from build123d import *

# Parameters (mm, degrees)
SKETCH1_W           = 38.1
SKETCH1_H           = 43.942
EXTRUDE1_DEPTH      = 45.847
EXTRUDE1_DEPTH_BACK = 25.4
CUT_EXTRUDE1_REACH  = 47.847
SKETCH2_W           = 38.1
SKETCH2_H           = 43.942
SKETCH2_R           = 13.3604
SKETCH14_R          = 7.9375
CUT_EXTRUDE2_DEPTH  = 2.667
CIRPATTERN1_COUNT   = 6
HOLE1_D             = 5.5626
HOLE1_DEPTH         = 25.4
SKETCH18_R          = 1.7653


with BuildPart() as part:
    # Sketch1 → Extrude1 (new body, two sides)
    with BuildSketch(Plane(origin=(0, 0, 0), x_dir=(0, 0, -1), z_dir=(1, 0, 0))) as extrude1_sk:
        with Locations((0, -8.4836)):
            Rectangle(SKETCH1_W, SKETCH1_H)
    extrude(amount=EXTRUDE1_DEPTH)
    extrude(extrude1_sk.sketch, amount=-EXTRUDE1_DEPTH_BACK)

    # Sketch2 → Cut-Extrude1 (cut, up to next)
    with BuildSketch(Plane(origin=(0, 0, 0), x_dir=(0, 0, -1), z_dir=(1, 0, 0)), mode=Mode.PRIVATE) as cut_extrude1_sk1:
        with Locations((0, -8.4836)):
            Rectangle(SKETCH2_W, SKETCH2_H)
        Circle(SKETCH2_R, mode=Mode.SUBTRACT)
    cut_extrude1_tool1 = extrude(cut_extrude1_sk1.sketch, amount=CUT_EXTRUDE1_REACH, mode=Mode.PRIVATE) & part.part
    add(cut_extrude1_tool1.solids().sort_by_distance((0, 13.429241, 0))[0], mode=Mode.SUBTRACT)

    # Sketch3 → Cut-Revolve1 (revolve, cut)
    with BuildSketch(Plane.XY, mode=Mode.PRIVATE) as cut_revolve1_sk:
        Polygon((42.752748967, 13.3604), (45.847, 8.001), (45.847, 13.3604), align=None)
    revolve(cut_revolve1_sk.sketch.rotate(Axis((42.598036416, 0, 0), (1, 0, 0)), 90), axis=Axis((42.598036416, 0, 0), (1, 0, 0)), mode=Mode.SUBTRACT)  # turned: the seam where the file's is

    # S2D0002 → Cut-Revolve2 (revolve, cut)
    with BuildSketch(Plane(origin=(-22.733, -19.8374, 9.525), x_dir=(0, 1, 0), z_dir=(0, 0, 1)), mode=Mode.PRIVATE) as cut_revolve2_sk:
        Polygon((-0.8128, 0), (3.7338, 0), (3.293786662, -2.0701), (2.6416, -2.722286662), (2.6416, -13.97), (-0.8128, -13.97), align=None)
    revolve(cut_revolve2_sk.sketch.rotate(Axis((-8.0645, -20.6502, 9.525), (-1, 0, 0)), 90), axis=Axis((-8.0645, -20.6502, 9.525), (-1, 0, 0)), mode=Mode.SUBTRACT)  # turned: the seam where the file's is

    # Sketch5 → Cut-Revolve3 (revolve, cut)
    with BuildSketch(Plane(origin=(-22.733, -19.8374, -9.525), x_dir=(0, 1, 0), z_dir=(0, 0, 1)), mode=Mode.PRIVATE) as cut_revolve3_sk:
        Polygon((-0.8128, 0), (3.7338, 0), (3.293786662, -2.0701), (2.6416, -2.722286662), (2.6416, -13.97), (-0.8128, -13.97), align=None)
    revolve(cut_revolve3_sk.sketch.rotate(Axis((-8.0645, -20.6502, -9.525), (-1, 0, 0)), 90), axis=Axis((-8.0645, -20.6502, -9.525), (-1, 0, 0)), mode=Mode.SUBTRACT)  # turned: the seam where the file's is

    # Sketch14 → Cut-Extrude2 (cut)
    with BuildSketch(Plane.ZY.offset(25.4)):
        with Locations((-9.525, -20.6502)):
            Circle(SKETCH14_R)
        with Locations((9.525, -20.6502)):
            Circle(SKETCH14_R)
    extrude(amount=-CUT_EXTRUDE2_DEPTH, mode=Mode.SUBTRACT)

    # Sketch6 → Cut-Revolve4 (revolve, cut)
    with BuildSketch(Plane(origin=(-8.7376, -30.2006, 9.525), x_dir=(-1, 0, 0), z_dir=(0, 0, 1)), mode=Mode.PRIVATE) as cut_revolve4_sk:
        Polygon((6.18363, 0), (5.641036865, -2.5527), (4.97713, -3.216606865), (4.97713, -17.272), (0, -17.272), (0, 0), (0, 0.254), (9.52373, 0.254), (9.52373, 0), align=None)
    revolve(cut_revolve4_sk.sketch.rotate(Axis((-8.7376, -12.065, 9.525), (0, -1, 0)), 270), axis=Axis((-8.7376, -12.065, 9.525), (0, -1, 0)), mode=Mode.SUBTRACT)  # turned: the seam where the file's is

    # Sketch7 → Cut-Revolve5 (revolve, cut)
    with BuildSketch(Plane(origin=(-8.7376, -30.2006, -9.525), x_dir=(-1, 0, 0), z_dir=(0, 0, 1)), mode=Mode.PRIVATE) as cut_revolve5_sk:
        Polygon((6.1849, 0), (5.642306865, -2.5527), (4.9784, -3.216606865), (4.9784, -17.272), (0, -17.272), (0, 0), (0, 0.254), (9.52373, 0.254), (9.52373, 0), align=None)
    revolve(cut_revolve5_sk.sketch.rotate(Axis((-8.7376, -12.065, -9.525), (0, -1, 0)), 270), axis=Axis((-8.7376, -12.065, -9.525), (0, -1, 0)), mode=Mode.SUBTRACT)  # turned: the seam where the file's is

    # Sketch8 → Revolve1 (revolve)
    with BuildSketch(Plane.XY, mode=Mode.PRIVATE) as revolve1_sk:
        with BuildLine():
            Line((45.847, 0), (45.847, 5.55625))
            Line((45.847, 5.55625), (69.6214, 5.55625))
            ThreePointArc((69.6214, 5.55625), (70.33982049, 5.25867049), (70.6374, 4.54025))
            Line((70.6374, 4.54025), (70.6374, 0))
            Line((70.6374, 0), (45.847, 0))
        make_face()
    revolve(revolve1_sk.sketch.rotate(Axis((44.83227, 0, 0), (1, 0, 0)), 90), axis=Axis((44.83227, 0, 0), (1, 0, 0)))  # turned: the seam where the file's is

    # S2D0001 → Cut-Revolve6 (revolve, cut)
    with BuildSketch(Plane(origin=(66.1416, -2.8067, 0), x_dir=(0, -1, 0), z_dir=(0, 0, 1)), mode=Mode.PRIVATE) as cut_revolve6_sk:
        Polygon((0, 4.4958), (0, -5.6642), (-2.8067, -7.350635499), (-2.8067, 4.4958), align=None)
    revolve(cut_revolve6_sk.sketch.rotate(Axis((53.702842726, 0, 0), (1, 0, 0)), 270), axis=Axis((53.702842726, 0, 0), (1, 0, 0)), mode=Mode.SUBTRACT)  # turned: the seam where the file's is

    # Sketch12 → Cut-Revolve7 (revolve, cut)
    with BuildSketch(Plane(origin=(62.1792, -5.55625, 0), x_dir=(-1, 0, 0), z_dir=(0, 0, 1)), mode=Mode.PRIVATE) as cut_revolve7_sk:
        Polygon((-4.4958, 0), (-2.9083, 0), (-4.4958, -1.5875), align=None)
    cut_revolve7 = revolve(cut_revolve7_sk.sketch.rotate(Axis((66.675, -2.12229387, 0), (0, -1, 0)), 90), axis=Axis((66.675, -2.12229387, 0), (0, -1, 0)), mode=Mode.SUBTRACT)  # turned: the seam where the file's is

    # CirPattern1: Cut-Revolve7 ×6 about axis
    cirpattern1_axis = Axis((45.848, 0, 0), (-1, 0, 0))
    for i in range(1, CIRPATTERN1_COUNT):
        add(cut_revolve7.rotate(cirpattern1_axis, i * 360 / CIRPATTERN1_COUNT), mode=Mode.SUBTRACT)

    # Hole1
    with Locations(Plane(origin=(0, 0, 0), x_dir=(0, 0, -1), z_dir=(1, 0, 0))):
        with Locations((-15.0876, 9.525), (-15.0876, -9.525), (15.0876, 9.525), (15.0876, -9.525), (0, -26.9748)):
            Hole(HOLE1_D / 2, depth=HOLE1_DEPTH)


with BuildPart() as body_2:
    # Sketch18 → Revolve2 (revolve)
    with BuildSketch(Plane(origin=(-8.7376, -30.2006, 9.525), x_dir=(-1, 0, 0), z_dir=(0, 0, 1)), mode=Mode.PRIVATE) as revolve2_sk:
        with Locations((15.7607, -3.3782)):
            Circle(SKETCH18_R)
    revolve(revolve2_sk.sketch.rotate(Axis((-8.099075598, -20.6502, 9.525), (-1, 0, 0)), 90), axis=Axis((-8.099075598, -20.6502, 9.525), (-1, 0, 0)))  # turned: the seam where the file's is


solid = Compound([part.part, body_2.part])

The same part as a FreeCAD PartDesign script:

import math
import FreeCAD as App
import Part
import Sketcher

V = App.Vector
Q = App.Units.Quantity

doc = App.newDocument("Part")
params = doc.addObject("Spreadsheet::Sheet", "Params")
for row, (alias, value) in enumerate([
    ("sketch1_height", "1.5 in"),
    ("sketch1_width", "1.73 in"),
    ("pad1_length", "1.805 in"),
    ("pad1_length2", "1 in"),
    ("sketch2_diameter", "1.052 in"),
    ("sketch2_height", "1.5 in"),
    ("sketch2_width", "1.73 in"),
    ("sketch3_height", "0.211 in"),
    ("groove_angle", "360 deg"),
    ("sketch4_width", "0.55 in"),
    ("sketch4_height", "0.179 in"),
    ("sketch4_height2", "0.136 in"),
    ("groove2_angle", "360 deg"),
    ("sketch5_width", "0.55 in"),
    ("sketch5_height", "0.179 in"),
    ("sketch5_height2", "0.136 in"),
    ("groove3_angle", "360 deg"),
    ("sketch6_diameter", "0.625 in"),
    ("pocket2_length", "0.105 in"),
    ("sketch7_height", "0.01 in"),
    ("sketch7_height2", "0.69 in"),
    ("groove4_angle", "360 deg"),
    ("sketch8_height", "0.01 in"),
    ("sketch8_height2", "0.69 in"),
    ("sketch8_width", "0.196 in"),
    ("groove5_angle", "360 deg"),
    ("sketch9_radius", "0.04 in"),
    ("sketch9_width", "0.976 in"),
    ("sketch9_height", "0.21875 in"),
    ("revolution_angle", "360 deg"),
    ("sketch10_width", "0.4 in"),
    ("groove6_angle", "360 deg"),
    ("sketch11_width", "0.0625 in"),
    ("groove7_angle", "360 deg"),
    ("sketch12_diameter", "0.219 in"),
    ("hole_diameter", "0.219 in"),
    ("hole_depth", "1 in"),
    ("sketch13_diameter", "0.139 in"),
    ("revolution2_angle", "360 deg"),
], start=1):
    params.set(f"A{row}", alias)
    params.set(f"B{row}", "=" + value)
    params.setAlias(f"B{row}", alias)

body = doc.addObject("PartDesign::Body", "Body")

sketch1 = body.newObject("Sketcher::SketchObject", "Sketch")
sketch1.AttachmentSupport = (doc.getObject("YZ_Plane"), [""])
sketch1.MapMode = "FlatFace"
sketch1.addGeometry(Part.LineSegment(V(13.4874, 19.05, 0), V(-30.4546, 19.05, 0)), False)
sketch1.addGeometry(Part.LineSegment(V(-30.4546, 19.05, 0), V(-30.4546, -19.05, 0)), False)
sketch1.addGeometry(Part.LineSegment(V(-30.4546, -19.05, 0), V(13.4874, -19.05, 0)), False)
sketch1.addGeometry(Part.LineSegment(V(13.4874, -19.05, 0), V(13.4874, 19.05, 0)), False)
sketch1.addConstraint(Sketcher.Constraint("Coincident", 0, 2, 1, 1))
sketch1.addConstraint(Sketcher.Constraint("Coincident", 1, 2, 2, 1))
sketch1.addConstraint(Sketcher.Constraint("Coincident", 2, 2, 3, 1))
sketch1.addConstraint(Sketcher.Constraint("Coincident", 3, 2, 0, 1))
sketch1.addConstraint(Sketcher.Constraint("Horizontal", 0))
sketch1.addConstraint(Sketcher.Constraint("Vertical", 1))
sketch1.addConstraint(Sketcher.Constraint("Horizontal", 2))
sketch1.addConstraint(Sketcher.Constraint("Vertical", 3))
sketch1.addConstraint(Sketcher.Constraint("DistanceY", 1, 2, 1, 1, Q("1.5 in")))
sketch1.addConstraint(Sketcher.Constraint("DistanceX", 0, 2, 0, 1, Q("1.73 in")))
sketch1.addConstraint(Sketcher.Constraint("DistanceY", -1, 1, 0, 2, Q("0.75 in")))
sketch1.addConstraint(Sketcher.Constraint("DistanceX", 0, 2, -1, 1, Q("1.199 in")))
sketch1.setExpression("Constraints[8]", "Params.sketch1_height")
sketch1.setExpression("Constraints[9]", "Params.sketch1_width")
pad1 = body.newObject("PartDesign::Pad", "Pad")
pad1.Profile = sketch1
pad1.Type = "TwoLengths"
pad1.setExpression("Length", "Params.pad1_length")
pad1.setExpression("Length2", "Params.pad1_length2")

sketch2 = body.newObject("Sketcher::SketchObject", "Sketch001")
sketch2.AttachmentSupport = (doc.getObject("YZ_Plane"), [""])
sketch2.MapMode = "FlatFace"
sketch2.addGeometry(Part.LineSegment(V(13.4874, 19.05, 0), V(-30.4546, 19.05, 0)), False)
sketch2.addGeometry(Part.LineSegment(V(-30.4546, 19.05, 0), V(-30.4546, -19.05, 0)), False)
sketch2.addGeometry(Part.LineSegment(V(-30.4546, -19.05, 0), V(13.4874, -19.05, 0)), False)
sketch2.addGeometry(Part.LineSegment(V(13.4874, -19.05, 0), V(13.4874, 19.05, 0)), False)
sketch2.addGeometry(Part.Circle(V(0, 0, 0), V(0, 0, 1), 13.3604), False)
sketch2.addConstraint(Sketcher.Constraint("Coincident", 0, 2, 1, 1))
sketch2.addConstraint(Sketcher.Constraint("Coincident", 1, 2, 2, 1))
sketch2.addConstraint(Sketcher.Constraint("Coincident", 2, 2, 3, 1))
sketch2.addConstraint(Sketcher.Constraint("Coincident", 3, 2, 0, 1))
sketch2.addConstraint(Sketcher.Constraint("Horizontal", 0))
sketch2.addConstraint(Sketcher.Constraint("Vertical", 1))
sketch2.addConstraint(Sketcher.Constraint("Horizontal", 2))
sketch2.addConstraint(Sketcher.Constraint("Vertical", 3))
sketch2.addConstraint(Sketcher.Constraint("Coincident", 4, 3, -1, 1))
sketch2.addConstraint(Sketcher.Constraint("Diameter", 4, Q("1.052 in")))
sketch2.addConstraint(Sketcher.Constraint("DistanceY", 1, 2, 1, 1, Q("1.5 in")))
sketch2.addConstraint(Sketcher.Constraint("DistanceX", 0, 2, 0, 1, Q("1.73 in")))
sketch2.addConstraint(Sketcher.Constraint("DistanceY", -1, 1, 0, 2, Q("0.75 in")))
sketch2.addConstraint(Sketcher.Constraint("DistanceX", 0, 2, -1, 1, Q("1.199 in")))
sketch2.setExpression("Constraints[9]", "Params.sketch2_diameter")
sketch2.setExpression("Constraints[10]", "Params.sketch2_height")
sketch2.setExpression("Constraints[11]", "Params.sketch2_width")
pocket1 = body.newObject("PartDesign::Pocket", "Pocket")
pocket1.Profile = sketch2
pocket1.Type = "UpToFirst"
pocket1.Reversed = True

sketch3 = body.newObject("Sketcher::SketchObject", "Sketch002")
sketch3.AttachmentSupport = (doc.getObject("XY_Plane"), [""])
sketch3.MapMode = "FlatFace"
sketch3.addGeometry(Part.LineSegment(V(42.752749, 13.3604, 0), V(45.847, 8.001, 0)), False)
sketch3.addGeometry(Part.LineSegment(V(45.847, 8.001, 0), V(45.847, 13.3604, 0)), False)
sketch3.addGeometry(Part.LineSegment(V(45.847, 13.3604, 0), V(42.752749, 13.3604, 0)), False)
sketch3.addConstraint(Sketcher.Constraint("Coincident", 0, 2, 1, 1))
sketch3.addConstraint(Sketcher.Constraint("Coincident", 1, 2, 2, 1))
sketch3.addConstraint(Sketcher.Constraint("Coincident", 2, 2, 0, 1))
sketch3.addConstraint(Sketcher.Constraint("Vertical", 1))
sketch3.addConstraint(Sketcher.Constraint("Horizontal", 2))
sketch3.addConstraint(Sketcher.Constraint("Angle", 0, Q("-60 deg")))
sketch3.addConstraint(Sketcher.Constraint("DistanceY", 1, 1, 1, 2, Q("0.211 in")))
sketch3.addConstraint(Sketcher.Constraint("DistanceX", -1, 1, 0, 2, Q("1.805 in")))
sketch3.addConstraint(Sketcher.Constraint("DistanceY", -1, 1, 0, 2, Q("0.315 in")))
sketch3.setExpression("Constraints[6]", "Params.sketch3_height")
groove = body.newObject("PartDesign::Groove", "Groove")
groove.Profile = sketch3
groove.ReferenceAxis = (sketch3, ["H_Axis"])
groove.setExpression("Angle", "Params.groove_angle")

sketch4 = body.newObject("Sketcher::SketchObject", "Sketch003")
sketch4.AttachmentSupport = (doc.getObject("XY_Plane"), [""])
sketch4.MapMode = "FlatFace"
sketch4.AttachmentOffset = App.Placement(V(0, 0, 0.375 * 25.4), App.Rotation())
sketch4.addGeometry(Part.LineSegment(V(-22.733, -16.1036, 0), V(-22.733, -20.6502, 0)), False)
sketch4.addGeometry(Part.LineSegment(V(-22.733, -20.6502, 0), V(-8.763, -20.6502, 0)), False)
sketch4.addGeometry(Part.LineSegment(V(-8.763, -20.6502, 0), V(-8.763, -17.1958, 0)), False)
sketch4.addGeometry(Part.LineSegment(V(-8.763, -17.1958, 0), V(-20.010713, -17.1958, 0)), False)
sketch4.addGeometry(Part.LineSegment(V(-20.010713, -17.1958, 0), V(-20.6629, -16.543613, 0)), False)
sketch4.addGeometry(Part.LineSegment(V(-20.6629, -16.543613, 0), V(-22.733, -16.1036, 0)), False)
sketch4.addGeometry(Part.LineSegment(V(-8.763, -20.6502, 0), V(-22.733, -20.6502, 0)), True)
sketch4.addConstraint(Sketcher.Constraint("Coincident", 0, 2, 1, 1))
sketch4.addConstraint(Sketcher.Constraint("Coincident", 1, 2, 2, 1))
sketch4.addConstraint(Sketcher.Constraint("Coincident", 2, 2, 3, 1))
sketch4.addConstraint(Sketcher.Constraint("Coincident", 3, 2, 4, 1))
sketch4.addConstraint(Sketcher.Constraint("Coincident", 4, 2, 5, 1))
sketch4.addConstraint(Sketcher.Constraint("Coincident", 5, 2, 0, 1))
sketch4.addConstraint(Sketcher.Constraint("Vertical", 0))
sketch4.addConstraint(Sketcher.Constraint("Horizontal", 1))
sketch4.addConstraint(Sketcher.Constraint("Vertical", 2))
sketch4.addConstraint(Sketcher.Constraint("Horizontal", 3))
sketch4.addConstraint(Sketcher.Constraint("Horizontal", 6))
sketch4.addConstraint(Sketcher.Constraint("Coincident", 6, 1, 1, 2))
sketch4.addConstraint(Sketcher.Constraint("Vertical", 5, 2, 6, 2))
sketch4.addConstraint(Sketcher.Constraint("Angle", 4, Q("135 deg")))
sketch4.addConstraint(Sketcher.Constraint("Angle", 5, Q("168 deg")))
sketch4.addConstraint(Sketcher.Constraint("DistanceX", 1, 1, 1, 2, Q("0.55 in")))
sketch4.addConstraint(Sketcher.Constraint("DistanceY", 0, 2, 0, 1, Q("0.179 in")))
sketch4.addConstraint(Sketcher.Constraint("DistanceY", 2, 1, 2, 2, Q("0.136 in")))
sketch4.addConstraint(Sketcher.Constraint("DistanceX", 0, 2, -1, 1, Q("0.895 in")))
sketch4.addConstraint(Sketcher.Constraint("DistanceY", 0, 2, -1, 1, Q("0.813 in")))
sketch4.addConstraint(Sketcher.Constraint("DistanceX", 4, 2, -1, 1, Q("0.8135 in")))
sketch4.setExpression("Constraints[15]", "Params.sketch4_width")
sketch4.setExpression("Constraints[16]", "Params.sketch4_height")
sketch4.setExpression("Constraints[17]", "Params.sketch4_height2")
groove2 = body.newObject("PartDesign::Groove", "Groove001")
groove2.Profile = sketch4
groove2.ReferenceAxis = (sketch4, ["Axis0"])
groove2.setExpression("Angle", "Params.groove2_angle")

sketch5 = body.newObject("Sketcher::SketchObject", "Sketch004")
sketch5.AttachmentSupport = (doc.getObject("XY_Plane"), [""])
sketch5.MapMode = "FlatFace"
sketch5.AttachmentOffset = App.Placement(V(0, 0, -0.375 * 25.4), App.Rotation())
sketch5.addGeometry(Part.LineSegment(V(-22.733, -16.1036, 0), V(-22.733, -20.6502, 0)), False)
sketch5.addGeometry(Part.LineSegment(V(-22.733, -20.6502, 0), V(-8.763, -20.6502, 0)), False)
sketch5.addGeometry(Part.LineSegment(V(-8.763, -20.6502, 0), V(-8.763, -17.1958, 0)), False)
sketch5.addGeometry(Part.LineSegment(V(-8.763, -17.1958, 0), V(-20.010713, -17.1958, 0)), False)
sketch5.addGeometry(Part.LineSegment(V(-20.010713, -17.1958, 0), V(-20.6629, -16.543613, 0)), False)
sketch5.addGeometry(Part.LineSegment(V(-20.6629, -16.543613, 0), V(-22.733, -16.1036, 0)), False)
sketch5.addGeometry(Part.LineSegment(V(-8.763, -20.6502, 0), V(-22.733, -20.6502, 0)), True)
sketch5.addConstraint(Sketcher.Constraint("Coincident", 0, 2, 1, 1))
sketch5.addConstraint(Sketcher.Constraint("Coincident", 1, 2, 2, 1))
sketch5.addConstraint(Sketcher.Constraint("Coincident", 2, 2, 3, 1))
sketch5.addConstraint(Sketcher.Constraint("Coincident", 3, 2, 4, 1))
sketch5.addConstraint(Sketcher.Constraint("Coincident", 4, 2, 5, 1))
sketch5.addConstraint(Sketcher.Constraint("Coincident", 5, 2, 0, 1))
sketch5.addConstraint(Sketcher.Constraint("Vertical", 0))
sketch5.addConstraint(Sketcher.Constraint("Horizontal", 1))
sketch5.addConstraint(Sketcher.Constraint("Vertical", 2))
sketch5.addConstraint(Sketcher.Constraint("Horizontal", 3))
sketch5.addConstraint(Sketcher.Constraint("Horizontal", 6))
sketch5.addConstraint(Sketcher.Constraint("Coincident", 6, 1, 1, 2))
sketch5.addConstraint(Sketcher.Constraint("Vertical", 5, 2, 6, 2))
sketch5.addConstraint(Sketcher.Constraint("Angle", 4, Q("135 deg")))
sketch5.addConstraint(Sketcher.Constraint("Angle", 5, Q("168 deg")))
sketch5.addConstraint(Sketcher.Constraint("DistanceX", 1, 1, 1, 2, Q("0.55 in")))
sketch5.addConstraint(Sketcher.Constraint("DistanceY", 0, 2, 0, 1, Q("0.179 in")))
sketch5.addConstraint(Sketcher.Constraint("DistanceY", 2, 1, 2, 2, Q("0.136 in")))
sketch5.addConstraint(Sketcher.Constraint("DistanceX", 0, 2, -1, 1, Q("0.895 in")))
sketch5.addConstraint(Sketcher.Constraint("DistanceY", 0, 2, -1, 1, Q("0.813 in")))
sketch5.addConstraint(Sketcher.Constraint("DistanceX", 4, 2, -1, 1, Q("0.8135 in")))
sketch5.setExpression("Constraints[15]", "Params.sketch5_width")
sketch5.setExpression("Constraints[16]", "Params.sketch5_height")
sketch5.setExpression("Constraints[17]", "Params.sketch5_height2")
groove3 = body.newObject("PartDesign::Groove", "Groove002")
groove3.Profile = sketch5
groove3.ReferenceAxis = (sketch5, ["Axis0"])
groove3.setExpression("Angle", "Params.groove3_angle")

sketch6 = body.newObject("Sketcher::SketchObject", "Sketch005")
sketch6.AttachmentSupport = (doc.getObject("YZ_Plane"), [""])
sketch6.MapMode = "FlatFace"
sketch6.AttachmentOffset = App.Placement(V(0, 0, -1 * 25.4), App.Rotation())
sketch6.addGeometry(Part.Circle(V(-20.6502, -9.525, 0), V(0, 0, 1), 7.9375), False)
sketch6.addGeometry(Part.Circle(V(-20.6502, 9.525, 0), V(0, 0, 1), 7.9375), False)
sketch6.addConstraint(Sketcher.Constraint("Equal", 0, 1))
sketch6.addConstraint(Sketcher.Constraint("Symmetric", 0, 3, 1, 3, -1))
sketch6.addConstraint(Sketcher.Constraint("Diameter", 0, Q("0.625 in")))
sketch6.addConstraint(Sketcher.Constraint("DistanceY", 0, 3, 1, 3, Q("0.75 in")))
sketch6.addConstraint(Sketcher.Constraint("DistanceX", 0, 3, -1, 1, Q("0.813 in")))
sketch6.setExpression("Constraints[2]", "Params.sketch6_diameter")
pocket2 = body.newObject("PartDesign::Pocket", "Pocket001")
pocket2.Profile = sketch6
pocket2.setExpression("Length", "Params.pocket2_length")
pocket2.Reversed = True

sketch7 = body.newObject("Sketcher::SketchObject", "Sketch006")
sketch7.AttachmentSupport = (doc.getObject("XY_Plane"), [""])
sketch7.MapMode = "FlatFace"
sketch7.AttachmentOffset = App.Placement(V(0, 0, 0.375 * 25.4), App.Rotation())
sketch7.addGeometry(Part.LineSegment(V(-14.378637, -27.6479, 0), V(-14.92123, -30.2006, 0)), False)
sketch7.addGeometry(Part.LineSegment(V(-14.92123, -30.2006, 0), V(-18.26133, -30.2006, 0)), False)
sketch7.addGeometry(Part.LineSegment(V(-18.26133, -30.2006, 0), V(-18.26133, -30.4546, 0)), False)
sketch7.addGeometry(Part.LineSegment(V(-18.26133, -30.4546, 0), V(-8.7376, -30.4546, 0)), False)
sketch7.addGeometry(Part.LineSegment(V(-8.7376, -30.4546, 0), V(-8.7376, -12.9286, 0)), False)
sketch7.addGeometry(Part.LineSegment(V(-8.7376, -12.9286, 0), V(-13.71473, -12.9286, 0)), False)
sketch7.addGeometry(Part.LineSegment(V(-13.71473, -12.9286, 0), V(-13.71473, -26.983993, 0)), False)
sketch7.addGeometry(Part.LineSegment(V(-13.71473, -26.983993, 0), V(-14.378637, -27.6479, 0)), False)
sketch7.addGeometry(Part.LineSegment(V(-8.7376, -12.9286, 0), V(-8.7376, -30.4546, 0)), True)
sketch7.addConstraint(Sketcher.Constraint("Coincident", 0, 2, 1, 1))
sketch7.addConstraint(Sketcher.Constraint("Coincident", 1, 2, 2, 1))
sketch7.addConstraint(Sketcher.Constraint("Coincident", 2, 2, 3, 1))
sketch7.addConstraint(Sketcher.Constraint("Coincident", 3, 2, 4, 1))
sketch7.addConstraint(Sketcher.Constraint("Coincident", 4, 2, 5, 1))
sketch7.addConstraint(Sketcher.Constraint("Coincident", 5, 2, 6, 1))
sketch7.addConstraint(Sketcher.Constraint("Coincident", 6, 2, 7, 1))
sketch7.addConstraint(Sketcher.Constraint("Coincident", 7, 2, 0, 1))
sketch7.addConstraint(Sketcher.Constraint("Horizontal", 1))
sketch7.addConstraint(Sketcher.Constraint("Vertical", 2))
sketch7.addConstraint(Sketcher.Constraint("Horizontal", 3))
sketch7.addConstraint(Sketcher.Constraint("Vertical", 4))
sketch7.addConstraint(Sketcher.Constraint("Horizontal", 5))
sketch7.addConstraint(Sketcher.Constraint("Vertical", 6))
sketch7.addConstraint(Sketcher.Constraint("Vertical", 8))
sketch7.addConstraint(Sketcher.Constraint("Coincident", 8, 1, 4, 2))
sketch7.addConstraint(Sketcher.Constraint("Horizontal", 2, 2, 8, 2))
sketch7.addConstraint(Sketcher.Constraint("Angle", 0, Q("-102 deg")))
sketch7.addConstraint(Sketcher.Constraint("Angle", 7, Q("-135 deg")))
sketch7.addConstraint(Sketcher.Constraint("DistanceY", 2, 2, 2, 1, Q("0.01 in")))
sketch7.addConstraint(Sketcher.Constraint("DistanceY", 4, 1, 4, 2, Q("0.69 in")))
sketch7.addConstraint(Sketcher.Constraint("DistanceX", 1, 2, 1, 1, Q("0.1315 in")))
sketch7.addConstraint(Sketcher.Constraint("DistanceY", 0, 2, -1, 1, Q("1.189 in")))
sketch7.addConstraint(Sketcher.Constraint("DistanceX", 3, 2, -1, 1, Q("0.344 in")))
sketch7.addConstraint(Sketcher.Constraint("DistanceX", 1, 2, 5, 2, Q("0.179 in")))
sketch7.addConstraint(Sketcher.Constraint("DistanceY", 7, 2, -1, 1, Q("1.0885 in")))
sketch7.addConstraint(Sketcher.Constraint("DistanceX", 3, 1, 3, 2, Q("9.52373 mm")))
sketch7.setExpression("Constraints[19]", "Params.sketch7_height")
sketch7.setExpression("Constraints[20]", "Params.sketch7_height2")
groove4 = body.newObject("PartDesign::Groove", "Groove003")
groove4.Profile = sketch7
groove4.ReferenceAxis = (sketch7, ["Axis0"])
groove4.setExpression("Angle", "Params.groove4_angle")

sketch8 = body.newObject("Sketcher::SketchObject", "Sketch007")
sketch8.AttachmentSupport = (doc.getObject("XY_Plane"), [""])
sketch8.MapMode = "FlatFace"
sketch8.AttachmentOffset = App.Placement(V(0, 0, -0.375 * 25.4), App.Rotation())
sketch8.addGeometry(Part.LineSegment(V(-14.379907, -27.6479, 0), V(-14.9225, -30.2006, 0)), False)
sketch8.addGeometry(Part.LineSegment(V(-14.9225, -30.2006, 0), V(-18.26133, -30.2006, 0)), False)
sketch8.addGeometry(Part.LineSegment(V(-18.26133, -30.2006, 0), V(-18.26133, -30.4546, 0)), False)
sketch8.addGeometry(Part.LineSegment(V(-18.26133, -30.4546, 0), V(-8.7376, -30.4546, 0)), False)
sketch8.addGeometry(Part.LineSegment(V(-8.7376, -30.4546, 0), V(-8.7376, -12.9286, 0)), False)
sketch8.addGeometry(Part.LineSegment(V(-8.7376, -12.9286, 0), V(-13.716, -12.9286, 0)), False)
sketch8.addGeometry(Part.LineSegment(V(-13.716, -12.9286, 0), V(-13.716, -26.983993, 0)), False)
sketch8.addGeometry(Part.LineSegment(V(-13.716, -26.983993, 0), V(-14.379907, -27.6479, 0)), False)
sketch8.addGeometry(Part.LineSegment(V(-8.7376, -12.9286, 0), V(-8.7376, -30.4546, 0)), True)
sketch8.addConstraint(Sketcher.Constraint("Coincident", 0, 2, 1, 1))
sketch8.addConstraint(Sketcher.Constraint("Coincident", 1, 2, 2, 1))
sketch8.addConstraint(Sketcher.Constraint("Coincident", 2, 2, 3, 1))
sketch8.addConstraint(Sketcher.Constraint("Coincident", 3, 2, 4, 1))
sketch8.addConstraint(Sketcher.Constraint("Coincident", 4, 2, 5, 1))
sketch8.addConstraint(Sketcher.Constraint("Coincident", 5, 2, 6, 1))
sketch8.addConstraint(Sketcher.Constraint("Coincident", 6, 2, 7, 1))
sketch8.addConstraint(Sketcher.Constraint("Coincident", 7, 2, 0, 1))
sketch8.addConstraint(Sketcher.Constraint("Horizontal", 1))
sketch8.addConstraint(Sketcher.Constraint("Vertical", 2))
sketch8.addConstraint(Sketcher.Constraint("Horizontal", 3))
sketch8.addConstraint(Sketcher.Constraint("Vertical", 4))
sketch8.addConstraint(Sketcher.Constraint("Horizontal", 5))
sketch8.addConstraint(Sketcher.Constraint("Vertical", 6))
sketch8.addConstraint(Sketcher.Constraint("Vertical", 8))
sketch8.addConstraint(Sketcher.Constraint("Coincident", 8, 1, 4, 2))
sketch8.addConstraint(Sketcher.Constraint("Horizontal", 2, 2, 8, 2))
sketch8.addConstraint(Sketcher.Constraint("Angle", 0, Q("-102 deg")))
sketch8.addConstraint(Sketcher.Constraint("Angle", 7, Q("-135 deg")))
sketch8.addConstraint(Sketcher.Constraint("DistanceY", 2, 2, 2, 1, Q("0.01 in")))
sketch8.addConstraint(Sketcher.Constraint("DistanceY", 4, 1, 4, 2, Q("0.69 in")))
sketch8.addConstraint(Sketcher.Constraint("DistanceX", 5, 2, 5, 1, Q("0.196 in")))
sketch8.addConstraint(Sketcher.Constraint("DistanceX", 5, 2, -1, 1, Q("0.54 in")))
sketch8.addConstraint(Sketcher.Constraint("DistanceY", 0, 2, -1, 1, Q("1.189 in")))
sketch8.addConstraint(Sketcher.Constraint("DistanceX", 0, 2, -1, 1, Q("0.5875 in")))
sketch8.addConstraint(Sketcher.Constraint("DistanceY", 7, 2, -1, 1, Q("1.0885 in")))
sketch8.addConstraint(Sketcher.Constraint("DistanceX", 1, 2, 1, 1, Q("3.33883 mm")))
sketch8.setExpression("Constraints[19]", "Params.sketch8_height")
sketch8.setExpression("Constraints[20]", "Params.sketch8_height2")
sketch8.setExpression("Constraints[21]", "Params.sketch8_width")
groove5 = body.newObject("PartDesign::Groove", "Groove004")
groove5.Profile = sketch8
groove5.ReferenceAxis = (sketch8, ["Axis0"])
groove5.setExpression("Angle", "Params.groove5_angle")

sketch9 = body.newObject("Sketcher::SketchObject", "Sketch008")
sketch9.AttachmentSupport = (doc.getObject("XY_Plane"), [""])
sketch9.MapMode = "FlatFace"
sketch9.addGeometry(Part.LineSegment(V(45.847, 5.55625, 0), V(45.847, 0, 0)), False)
sketch9.addGeometry(Part.LineSegment(V(45.847, 0, 0), V(70.6374, 0, 0)), False)
sketch9.addGeometry(Part.LineSegment(V(70.6374, 0, 0), V(70.6374, 4.54025, 0)), False)
sketch9.addGeometry(Part.ArcOfCircle(Part.Circle(V(69.6214, 4.54025, 0), V(0, 0, 1), 1.016), math.radians(0), math.radians(90)), False)
sketch9.addGeometry(Part.LineSegment(V(69.6214, 5.55625, 0), V(45.847, 5.55625, 0)), False)
sketch9.addConstraint(Sketcher.Constraint("Coincident", 0, 2, 1, 1))
sketch9.addConstraint(Sketcher.Constraint("Coincident", 1, 2, 2, 1))
sketch9.addConstraint(Sketcher.Constraint("Tangent", 2, 2, 3, 1))
sketch9.addConstraint(Sketcher.Constraint("Tangent", 3, 2, 4, 1))
sketch9.addConstraint(Sketcher.Constraint("Coincident", 4, 2, 0, 1))
sketch9.addConstraint(Sketcher.Constraint("Vertical", 0))
sketch9.addConstraint(Sketcher.Constraint("Horizontal", 1))
sketch9.addConstraint(Sketcher.Constraint("Vertical", 2))
sketch9.addConstraint(Sketcher.Constraint("Horizontal", 4))
sketch9.addConstraint(Sketcher.Constraint("PointOnObject", 0, 2, -1))
sketch9.addConstraint(Sketcher.Constraint("Radius", 3, Q("0.04 in")))
sketch9.addConstraint(Sketcher.Constraint("DistanceX", 1, 1, 1, 2, Q("0.976 in")))
sketch9.addConstraint(Sketcher.Constraint("DistanceY", 0, 2, 0, 1, Q("0.21875 in")))
sketch9.addConstraint(Sketcher.Constraint("DistanceX", -1, 1, 3, 3, Q("2.741 in")))
sketch9.setExpression("Constraints[10]", "Params.sketch9_radius")
sketch9.setExpression("Constraints[11]", "Params.sketch9_width")
sketch9.setExpression("Constraints[12]", "Params.sketch9_height")
revolution = body.newObject("PartDesign::Revolution", "Revolution")
revolution.Profile = sketch9
revolution.ReferenceAxis = (sketch9, ["H_Axis"])
revolution.setExpression("Angle", "Params.revolution_angle")

sketch10 = body.newObject("Sketcher::SketchObject", "Sketch009")
sketch10.AttachmentSupport = (doc.getObject("XY_Plane"), [""])
sketch10.MapMode = "FlatFace"
sketch10.addGeometry(Part.LineSegment(V(60.4774, -2.8067, 0), V(70.6374, -2.8067, 0)), False)
sketch10.addGeometry(Part.LineSegment(V(70.6374, -2.8067, 0), V(70.6374, 0, 0)), False)
sketch10.addGeometry(Part.LineSegment(V(70.6374, 0, 0), V(58.790965, 0, 0)), False)
sketch10.addGeometry(Part.LineSegment(V(58.790965, 0, 0), V(60.4774, -2.8067, 0)), False)
sketch10.addConstraint(Sketcher.Constraint("Coincident", 0, 2, 1, 1))
sketch10.addConstraint(Sketcher.Constraint("Coincident", 1, 2, 2, 1))
sketch10.addConstraint(Sketcher.Constraint("Coincident", 2, 2, 3, 1))
sketch10.addConstraint(Sketcher.Constraint("Coincident", 3, 2, 0, 1))
sketch10.addConstraint(Sketcher.Constraint("Horizontal", 0))
sketch10.addConstraint(Sketcher.Constraint("Vertical", 1))
sketch10.addConstraint(Sketcher.Constraint("Horizontal", 2))
sketch10.addConstraint(Sketcher.Constraint("PointOnObject", 1, 2, -1))
sketch10.addConstraint(Sketcher.Constraint("DistanceX", 0, 1, 0, 2, Q("0.4 in")))
sketch10.addConstraint(Sketcher.Constraint("Angle", 3, Q("-59 deg")))
sketch10.addConstraint(Sketcher.Constraint("DistanceY", 1, 1, 1, 2, Q("0.1105 in")))
sketch10.addConstraint(Sketcher.Constraint("DistanceX", -1, 1, 0, 2, Q("2.781 in")))
sketch10.setExpression("Constraints[8]", "Params.sketch10_width")
groove6 = body.newObject("PartDesign::Groove", "Groove005")
groove6.Profile = sketch10
groove6.ReferenceAxis = (sketch10, ["H_Axis"])
groove6.setExpression("Angle", "Params.groove6_angle")

sketch11 = body.newObject("Sketcher::SketchObject", "Sketch010")
sketch11.AttachmentSupport = (doc.getObject("XY_Plane"), [""])
sketch11.MapMode = "FlatFace"
sketch11.addGeometry(Part.LineSegment(V(65.0875, -5.55625, 0), V(66.675, -5.55625, 0)), False)
sketch11.addGeometry(Part.LineSegment(V(66.675, -5.55625, 0), V(66.675, -3.96875, 0)), False)
sketch11.addGeometry(Part.LineSegment(V(66.675, -3.96875, 0), V(65.0875, -5.55625, 0)), False)
sketch11.addGeometry(Part.LineSegment(V(66.675, -3.96875, 0), V(66.675, -5.55625, 0)), True)
sketch11.addConstraint(Sketcher.Constraint("Coincident", 0, 2, 1, 1))
sketch11.addConstraint(Sketcher.Constraint("Coincident", 1, 2, 2, 1))
sketch11.addConstraint(Sketcher.Constraint("Coincident", 2, 2, 0, 1))
sketch11.addConstraint(Sketcher.Constraint("Horizontal", 0))
sketch11.addConstraint(Sketcher.Constraint("Vertical", 1))
sketch11.addConstraint(Sketcher.Constraint("Vertical", 3))
sketch11.addConstraint(Sketcher.Constraint("Coincident", 3, 1, 1, 2))
sketch11.addConstraint(Sketcher.Constraint("Horizontal", 2, 2, 3, 2))
sketch11.addConstraint(Sketcher.Constraint("Equal", 0, 1))
sketch11.addConstraint(Sketcher.Constraint("DistanceX", 0, 1, 0, 2, Q("0.0625 in")))
sketch11.addConstraint(Sketcher.Constraint("DistanceX", -1, 1, 0, 2, Q("2.625 in")))
sketch11.addConstraint(Sketcher.Constraint("DistanceY", 0, 2, -1, 1, Q("0.21875 in")))
sketch11.setExpression("Constraints[9]", "Params.sketch11_width")
groove7 = body.newObject("PartDesign::Groove", "Groove006")
groove7.Profile = sketch11
groove7.ReferenceAxis = (sketch11, ["Axis0"])
groove7.setExpression("Angle", "Params.groove7_angle")
doc.recompute()

polarpattern = body.newObject("PartDesign::PolarPattern", "PolarPattern")
polarpattern.Originals = [groove7]
polarpattern.Axis = (doc.getObject("X_Axis"), [""])
polarpattern.Angle = 360
polarpattern.Occurrences = 6
body.Tip = polarpattern

sketch12 = body.newObject("Sketcher::SketchObject", "Sketch011")
sketch12.AttachmentSupport = (doc.getObject("YZ_Plane"), [""])
sketch12.MapMode = "FlatFace"
sketch12.addGeometry(Part.Circle(V(9.525, 15.0876, 0), V(0, 0, 1), 2.7813), False)
sketch12.addGeometry(Part.Circle(V(-9.525, 15.0876, 0), V(0, 0, 1), 2.7813), False)
sketch12.addGeometry(Part.Circle(V(9.525, -15.0876, 0), V(0, 0, 1), 2.7813), False)
sketch12.addGeometry(Part.Circle(V(-9.525, -15.0876, 0), V(0, 0, 1), 2.7813), False)
sketch12.addGeometry(Part.Circle(V(-26.9748, 0, 0), V(0, 0, 1), 2.7813), False)
sketch12.addConstraint(Sketcher.Constraint("Equal", 0, 1))
sketch12.addConstraint(Sketcher.Constraint("Equal", 1, 2))
sketch12.addConstraint(Sketcher.Constraint("Equal", 2, 3))
sketch12.addConstraint(Sketcher.Constraint("Equal", 3, 4))
sketch12.addConstraint(Sketcher.Constraint("Symmetric", 1, 3, 2, 3, -1, 1))
sketch12.addConstraint(Sketcher.Constraint("Symmetric", 0, 3, 3, 3, -1, 1))
sketch12.addConstraint(Sketcher.Constraint("Symmetric", 0, 3, 1, 3, -2))
sketch12.addConstraint(Sketcher.Constraint("PointOnObject", 4, 3, -1))
sketch12.addConstraint(Sketcher.Constraint("Diameter", 0, Q("0.219 in")))
sketch12.addConstraint(Sketcher.Constraint("DistanceX", 1, 3, 0, 3, Q("0.75 in")))
sketch12.addConstraint(Sketcher.Constraint("DistanceY", -1, 1, 0, 3, Q("0.594 in")))
sketch12.addConstraint(Sketcher.Constraint("DistanceX", 4, 3, -1, 1, Q("1.062 in")))
sketch12.setExpression("Constraints[8]", "Params.sketch12_diameter")
doc.recompute()
hole = body.newObject("PartDesign::Hole", "Hole")
hole.Profile = sketch12
hole.ThreadType = "None"
hole.setExpression("Diameter", "Params.hole_diameter")
hole.DepthType = "Dimension"
hole.setExpression("Depth", "Params.hole_depth")
hole.DrillPoint = "Flat"
body2 = doc.addObject("PartDesign::Body", "Body001")

sketch13 = body2.newObject("Sketcher::SketchObject", "Sketch012")
sketch13.AttachmentSupport = (doc.getObject("XY_Plane001"), [""])
sketch13.MapMode = "FlatFace"
sketch13.AttachmentOffset = App.Placement(V(0, 0, 0.375 * 25.4), App.Rotation())
sketch13.addGeometry(Part.Circle(V(-24.4983, -26.8224, 0), V(0, 0, 1), 1.7653), False)
sketch13.addGeometry(Part.LineSegment(V(-24.4983, -20.6502, 0), V(-34.4983, -20.6502, 0)), True)
sketch13.addConstraint(Sketcher.Constraint("Horizontal", 1))
sketch13.addConstraint(Sketcher.Constraint("Vertical", 0, 3, 1, 1))
sketch13.addConstraint(Sketcher.Constraint("Diameter", 0, Q("0.139 in")))
sketch13.addConstraint(Sketcher.Constraint("DistanceY", 0, 3, -1, 1, Q("1.056 in")))
sketch13.addConstraint(Sketcher.Constraint("DistanceY", 1, 1, -1, 1, Q("0.813 in")))
sketch13.addConstraint(Sketcher.Constraint("DistanceX", 1, 2, 1, 1, Q("10 mm")))
sketch13.addConstraint(Sketcher.Constraint("DistanceX", 0, 3, -1, 1, Q("0.9645 in")))
sketch13.setExpression("Constraints[2]", "Params.sketch13_diameter")
revolution2 = body2.newObject("PartDesign::Revolution", "Revolution001")
revolution2.Profile = sketch13
revolution2.ReferenceAxis = (sketch13, ["Axis0"])
revolution2.setExpression("Angle", "Params.revolution2_angle")

doc.recompute()
